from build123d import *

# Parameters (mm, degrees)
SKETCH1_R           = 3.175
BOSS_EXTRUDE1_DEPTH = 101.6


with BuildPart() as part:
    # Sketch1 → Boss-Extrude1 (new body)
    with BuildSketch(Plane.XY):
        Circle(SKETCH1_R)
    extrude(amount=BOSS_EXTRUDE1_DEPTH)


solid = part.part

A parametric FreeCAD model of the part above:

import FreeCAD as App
import Part
import Sketcher

V = App.Vector
Q = App.Units.Quantity

doc = App.newDocument("Part")
body = doc.addObject("PartDesign::Body", "Body")

# Sketch on XY plane
sketch1 = doc.addObject("Sketcher::SketchObject", "Sketch")
body.addObject(sketch1)
sketch1.AttachmentSupport = (doc.XY_Plane, [""])
sketch1.MapMode = "FlatFace"
sketch1.addGeometry(Part.Circle(V(0, 0, 0), V(0, 0, 1), 3.2), False)
sketch1.addConstraint([
    Sketcher.Constraint("Coincident", 0, 3, -1, 1),
    Sketcher.Constraint("Diameter", 0, Q("0.25 in")),
])
pad1 = doc.addObject("PartDesign::Pad", "Pad")
body.addObject(pad1)
pad1.Profile = sketch1
pad1.Length = Q("4 in")

doc.recompute()
